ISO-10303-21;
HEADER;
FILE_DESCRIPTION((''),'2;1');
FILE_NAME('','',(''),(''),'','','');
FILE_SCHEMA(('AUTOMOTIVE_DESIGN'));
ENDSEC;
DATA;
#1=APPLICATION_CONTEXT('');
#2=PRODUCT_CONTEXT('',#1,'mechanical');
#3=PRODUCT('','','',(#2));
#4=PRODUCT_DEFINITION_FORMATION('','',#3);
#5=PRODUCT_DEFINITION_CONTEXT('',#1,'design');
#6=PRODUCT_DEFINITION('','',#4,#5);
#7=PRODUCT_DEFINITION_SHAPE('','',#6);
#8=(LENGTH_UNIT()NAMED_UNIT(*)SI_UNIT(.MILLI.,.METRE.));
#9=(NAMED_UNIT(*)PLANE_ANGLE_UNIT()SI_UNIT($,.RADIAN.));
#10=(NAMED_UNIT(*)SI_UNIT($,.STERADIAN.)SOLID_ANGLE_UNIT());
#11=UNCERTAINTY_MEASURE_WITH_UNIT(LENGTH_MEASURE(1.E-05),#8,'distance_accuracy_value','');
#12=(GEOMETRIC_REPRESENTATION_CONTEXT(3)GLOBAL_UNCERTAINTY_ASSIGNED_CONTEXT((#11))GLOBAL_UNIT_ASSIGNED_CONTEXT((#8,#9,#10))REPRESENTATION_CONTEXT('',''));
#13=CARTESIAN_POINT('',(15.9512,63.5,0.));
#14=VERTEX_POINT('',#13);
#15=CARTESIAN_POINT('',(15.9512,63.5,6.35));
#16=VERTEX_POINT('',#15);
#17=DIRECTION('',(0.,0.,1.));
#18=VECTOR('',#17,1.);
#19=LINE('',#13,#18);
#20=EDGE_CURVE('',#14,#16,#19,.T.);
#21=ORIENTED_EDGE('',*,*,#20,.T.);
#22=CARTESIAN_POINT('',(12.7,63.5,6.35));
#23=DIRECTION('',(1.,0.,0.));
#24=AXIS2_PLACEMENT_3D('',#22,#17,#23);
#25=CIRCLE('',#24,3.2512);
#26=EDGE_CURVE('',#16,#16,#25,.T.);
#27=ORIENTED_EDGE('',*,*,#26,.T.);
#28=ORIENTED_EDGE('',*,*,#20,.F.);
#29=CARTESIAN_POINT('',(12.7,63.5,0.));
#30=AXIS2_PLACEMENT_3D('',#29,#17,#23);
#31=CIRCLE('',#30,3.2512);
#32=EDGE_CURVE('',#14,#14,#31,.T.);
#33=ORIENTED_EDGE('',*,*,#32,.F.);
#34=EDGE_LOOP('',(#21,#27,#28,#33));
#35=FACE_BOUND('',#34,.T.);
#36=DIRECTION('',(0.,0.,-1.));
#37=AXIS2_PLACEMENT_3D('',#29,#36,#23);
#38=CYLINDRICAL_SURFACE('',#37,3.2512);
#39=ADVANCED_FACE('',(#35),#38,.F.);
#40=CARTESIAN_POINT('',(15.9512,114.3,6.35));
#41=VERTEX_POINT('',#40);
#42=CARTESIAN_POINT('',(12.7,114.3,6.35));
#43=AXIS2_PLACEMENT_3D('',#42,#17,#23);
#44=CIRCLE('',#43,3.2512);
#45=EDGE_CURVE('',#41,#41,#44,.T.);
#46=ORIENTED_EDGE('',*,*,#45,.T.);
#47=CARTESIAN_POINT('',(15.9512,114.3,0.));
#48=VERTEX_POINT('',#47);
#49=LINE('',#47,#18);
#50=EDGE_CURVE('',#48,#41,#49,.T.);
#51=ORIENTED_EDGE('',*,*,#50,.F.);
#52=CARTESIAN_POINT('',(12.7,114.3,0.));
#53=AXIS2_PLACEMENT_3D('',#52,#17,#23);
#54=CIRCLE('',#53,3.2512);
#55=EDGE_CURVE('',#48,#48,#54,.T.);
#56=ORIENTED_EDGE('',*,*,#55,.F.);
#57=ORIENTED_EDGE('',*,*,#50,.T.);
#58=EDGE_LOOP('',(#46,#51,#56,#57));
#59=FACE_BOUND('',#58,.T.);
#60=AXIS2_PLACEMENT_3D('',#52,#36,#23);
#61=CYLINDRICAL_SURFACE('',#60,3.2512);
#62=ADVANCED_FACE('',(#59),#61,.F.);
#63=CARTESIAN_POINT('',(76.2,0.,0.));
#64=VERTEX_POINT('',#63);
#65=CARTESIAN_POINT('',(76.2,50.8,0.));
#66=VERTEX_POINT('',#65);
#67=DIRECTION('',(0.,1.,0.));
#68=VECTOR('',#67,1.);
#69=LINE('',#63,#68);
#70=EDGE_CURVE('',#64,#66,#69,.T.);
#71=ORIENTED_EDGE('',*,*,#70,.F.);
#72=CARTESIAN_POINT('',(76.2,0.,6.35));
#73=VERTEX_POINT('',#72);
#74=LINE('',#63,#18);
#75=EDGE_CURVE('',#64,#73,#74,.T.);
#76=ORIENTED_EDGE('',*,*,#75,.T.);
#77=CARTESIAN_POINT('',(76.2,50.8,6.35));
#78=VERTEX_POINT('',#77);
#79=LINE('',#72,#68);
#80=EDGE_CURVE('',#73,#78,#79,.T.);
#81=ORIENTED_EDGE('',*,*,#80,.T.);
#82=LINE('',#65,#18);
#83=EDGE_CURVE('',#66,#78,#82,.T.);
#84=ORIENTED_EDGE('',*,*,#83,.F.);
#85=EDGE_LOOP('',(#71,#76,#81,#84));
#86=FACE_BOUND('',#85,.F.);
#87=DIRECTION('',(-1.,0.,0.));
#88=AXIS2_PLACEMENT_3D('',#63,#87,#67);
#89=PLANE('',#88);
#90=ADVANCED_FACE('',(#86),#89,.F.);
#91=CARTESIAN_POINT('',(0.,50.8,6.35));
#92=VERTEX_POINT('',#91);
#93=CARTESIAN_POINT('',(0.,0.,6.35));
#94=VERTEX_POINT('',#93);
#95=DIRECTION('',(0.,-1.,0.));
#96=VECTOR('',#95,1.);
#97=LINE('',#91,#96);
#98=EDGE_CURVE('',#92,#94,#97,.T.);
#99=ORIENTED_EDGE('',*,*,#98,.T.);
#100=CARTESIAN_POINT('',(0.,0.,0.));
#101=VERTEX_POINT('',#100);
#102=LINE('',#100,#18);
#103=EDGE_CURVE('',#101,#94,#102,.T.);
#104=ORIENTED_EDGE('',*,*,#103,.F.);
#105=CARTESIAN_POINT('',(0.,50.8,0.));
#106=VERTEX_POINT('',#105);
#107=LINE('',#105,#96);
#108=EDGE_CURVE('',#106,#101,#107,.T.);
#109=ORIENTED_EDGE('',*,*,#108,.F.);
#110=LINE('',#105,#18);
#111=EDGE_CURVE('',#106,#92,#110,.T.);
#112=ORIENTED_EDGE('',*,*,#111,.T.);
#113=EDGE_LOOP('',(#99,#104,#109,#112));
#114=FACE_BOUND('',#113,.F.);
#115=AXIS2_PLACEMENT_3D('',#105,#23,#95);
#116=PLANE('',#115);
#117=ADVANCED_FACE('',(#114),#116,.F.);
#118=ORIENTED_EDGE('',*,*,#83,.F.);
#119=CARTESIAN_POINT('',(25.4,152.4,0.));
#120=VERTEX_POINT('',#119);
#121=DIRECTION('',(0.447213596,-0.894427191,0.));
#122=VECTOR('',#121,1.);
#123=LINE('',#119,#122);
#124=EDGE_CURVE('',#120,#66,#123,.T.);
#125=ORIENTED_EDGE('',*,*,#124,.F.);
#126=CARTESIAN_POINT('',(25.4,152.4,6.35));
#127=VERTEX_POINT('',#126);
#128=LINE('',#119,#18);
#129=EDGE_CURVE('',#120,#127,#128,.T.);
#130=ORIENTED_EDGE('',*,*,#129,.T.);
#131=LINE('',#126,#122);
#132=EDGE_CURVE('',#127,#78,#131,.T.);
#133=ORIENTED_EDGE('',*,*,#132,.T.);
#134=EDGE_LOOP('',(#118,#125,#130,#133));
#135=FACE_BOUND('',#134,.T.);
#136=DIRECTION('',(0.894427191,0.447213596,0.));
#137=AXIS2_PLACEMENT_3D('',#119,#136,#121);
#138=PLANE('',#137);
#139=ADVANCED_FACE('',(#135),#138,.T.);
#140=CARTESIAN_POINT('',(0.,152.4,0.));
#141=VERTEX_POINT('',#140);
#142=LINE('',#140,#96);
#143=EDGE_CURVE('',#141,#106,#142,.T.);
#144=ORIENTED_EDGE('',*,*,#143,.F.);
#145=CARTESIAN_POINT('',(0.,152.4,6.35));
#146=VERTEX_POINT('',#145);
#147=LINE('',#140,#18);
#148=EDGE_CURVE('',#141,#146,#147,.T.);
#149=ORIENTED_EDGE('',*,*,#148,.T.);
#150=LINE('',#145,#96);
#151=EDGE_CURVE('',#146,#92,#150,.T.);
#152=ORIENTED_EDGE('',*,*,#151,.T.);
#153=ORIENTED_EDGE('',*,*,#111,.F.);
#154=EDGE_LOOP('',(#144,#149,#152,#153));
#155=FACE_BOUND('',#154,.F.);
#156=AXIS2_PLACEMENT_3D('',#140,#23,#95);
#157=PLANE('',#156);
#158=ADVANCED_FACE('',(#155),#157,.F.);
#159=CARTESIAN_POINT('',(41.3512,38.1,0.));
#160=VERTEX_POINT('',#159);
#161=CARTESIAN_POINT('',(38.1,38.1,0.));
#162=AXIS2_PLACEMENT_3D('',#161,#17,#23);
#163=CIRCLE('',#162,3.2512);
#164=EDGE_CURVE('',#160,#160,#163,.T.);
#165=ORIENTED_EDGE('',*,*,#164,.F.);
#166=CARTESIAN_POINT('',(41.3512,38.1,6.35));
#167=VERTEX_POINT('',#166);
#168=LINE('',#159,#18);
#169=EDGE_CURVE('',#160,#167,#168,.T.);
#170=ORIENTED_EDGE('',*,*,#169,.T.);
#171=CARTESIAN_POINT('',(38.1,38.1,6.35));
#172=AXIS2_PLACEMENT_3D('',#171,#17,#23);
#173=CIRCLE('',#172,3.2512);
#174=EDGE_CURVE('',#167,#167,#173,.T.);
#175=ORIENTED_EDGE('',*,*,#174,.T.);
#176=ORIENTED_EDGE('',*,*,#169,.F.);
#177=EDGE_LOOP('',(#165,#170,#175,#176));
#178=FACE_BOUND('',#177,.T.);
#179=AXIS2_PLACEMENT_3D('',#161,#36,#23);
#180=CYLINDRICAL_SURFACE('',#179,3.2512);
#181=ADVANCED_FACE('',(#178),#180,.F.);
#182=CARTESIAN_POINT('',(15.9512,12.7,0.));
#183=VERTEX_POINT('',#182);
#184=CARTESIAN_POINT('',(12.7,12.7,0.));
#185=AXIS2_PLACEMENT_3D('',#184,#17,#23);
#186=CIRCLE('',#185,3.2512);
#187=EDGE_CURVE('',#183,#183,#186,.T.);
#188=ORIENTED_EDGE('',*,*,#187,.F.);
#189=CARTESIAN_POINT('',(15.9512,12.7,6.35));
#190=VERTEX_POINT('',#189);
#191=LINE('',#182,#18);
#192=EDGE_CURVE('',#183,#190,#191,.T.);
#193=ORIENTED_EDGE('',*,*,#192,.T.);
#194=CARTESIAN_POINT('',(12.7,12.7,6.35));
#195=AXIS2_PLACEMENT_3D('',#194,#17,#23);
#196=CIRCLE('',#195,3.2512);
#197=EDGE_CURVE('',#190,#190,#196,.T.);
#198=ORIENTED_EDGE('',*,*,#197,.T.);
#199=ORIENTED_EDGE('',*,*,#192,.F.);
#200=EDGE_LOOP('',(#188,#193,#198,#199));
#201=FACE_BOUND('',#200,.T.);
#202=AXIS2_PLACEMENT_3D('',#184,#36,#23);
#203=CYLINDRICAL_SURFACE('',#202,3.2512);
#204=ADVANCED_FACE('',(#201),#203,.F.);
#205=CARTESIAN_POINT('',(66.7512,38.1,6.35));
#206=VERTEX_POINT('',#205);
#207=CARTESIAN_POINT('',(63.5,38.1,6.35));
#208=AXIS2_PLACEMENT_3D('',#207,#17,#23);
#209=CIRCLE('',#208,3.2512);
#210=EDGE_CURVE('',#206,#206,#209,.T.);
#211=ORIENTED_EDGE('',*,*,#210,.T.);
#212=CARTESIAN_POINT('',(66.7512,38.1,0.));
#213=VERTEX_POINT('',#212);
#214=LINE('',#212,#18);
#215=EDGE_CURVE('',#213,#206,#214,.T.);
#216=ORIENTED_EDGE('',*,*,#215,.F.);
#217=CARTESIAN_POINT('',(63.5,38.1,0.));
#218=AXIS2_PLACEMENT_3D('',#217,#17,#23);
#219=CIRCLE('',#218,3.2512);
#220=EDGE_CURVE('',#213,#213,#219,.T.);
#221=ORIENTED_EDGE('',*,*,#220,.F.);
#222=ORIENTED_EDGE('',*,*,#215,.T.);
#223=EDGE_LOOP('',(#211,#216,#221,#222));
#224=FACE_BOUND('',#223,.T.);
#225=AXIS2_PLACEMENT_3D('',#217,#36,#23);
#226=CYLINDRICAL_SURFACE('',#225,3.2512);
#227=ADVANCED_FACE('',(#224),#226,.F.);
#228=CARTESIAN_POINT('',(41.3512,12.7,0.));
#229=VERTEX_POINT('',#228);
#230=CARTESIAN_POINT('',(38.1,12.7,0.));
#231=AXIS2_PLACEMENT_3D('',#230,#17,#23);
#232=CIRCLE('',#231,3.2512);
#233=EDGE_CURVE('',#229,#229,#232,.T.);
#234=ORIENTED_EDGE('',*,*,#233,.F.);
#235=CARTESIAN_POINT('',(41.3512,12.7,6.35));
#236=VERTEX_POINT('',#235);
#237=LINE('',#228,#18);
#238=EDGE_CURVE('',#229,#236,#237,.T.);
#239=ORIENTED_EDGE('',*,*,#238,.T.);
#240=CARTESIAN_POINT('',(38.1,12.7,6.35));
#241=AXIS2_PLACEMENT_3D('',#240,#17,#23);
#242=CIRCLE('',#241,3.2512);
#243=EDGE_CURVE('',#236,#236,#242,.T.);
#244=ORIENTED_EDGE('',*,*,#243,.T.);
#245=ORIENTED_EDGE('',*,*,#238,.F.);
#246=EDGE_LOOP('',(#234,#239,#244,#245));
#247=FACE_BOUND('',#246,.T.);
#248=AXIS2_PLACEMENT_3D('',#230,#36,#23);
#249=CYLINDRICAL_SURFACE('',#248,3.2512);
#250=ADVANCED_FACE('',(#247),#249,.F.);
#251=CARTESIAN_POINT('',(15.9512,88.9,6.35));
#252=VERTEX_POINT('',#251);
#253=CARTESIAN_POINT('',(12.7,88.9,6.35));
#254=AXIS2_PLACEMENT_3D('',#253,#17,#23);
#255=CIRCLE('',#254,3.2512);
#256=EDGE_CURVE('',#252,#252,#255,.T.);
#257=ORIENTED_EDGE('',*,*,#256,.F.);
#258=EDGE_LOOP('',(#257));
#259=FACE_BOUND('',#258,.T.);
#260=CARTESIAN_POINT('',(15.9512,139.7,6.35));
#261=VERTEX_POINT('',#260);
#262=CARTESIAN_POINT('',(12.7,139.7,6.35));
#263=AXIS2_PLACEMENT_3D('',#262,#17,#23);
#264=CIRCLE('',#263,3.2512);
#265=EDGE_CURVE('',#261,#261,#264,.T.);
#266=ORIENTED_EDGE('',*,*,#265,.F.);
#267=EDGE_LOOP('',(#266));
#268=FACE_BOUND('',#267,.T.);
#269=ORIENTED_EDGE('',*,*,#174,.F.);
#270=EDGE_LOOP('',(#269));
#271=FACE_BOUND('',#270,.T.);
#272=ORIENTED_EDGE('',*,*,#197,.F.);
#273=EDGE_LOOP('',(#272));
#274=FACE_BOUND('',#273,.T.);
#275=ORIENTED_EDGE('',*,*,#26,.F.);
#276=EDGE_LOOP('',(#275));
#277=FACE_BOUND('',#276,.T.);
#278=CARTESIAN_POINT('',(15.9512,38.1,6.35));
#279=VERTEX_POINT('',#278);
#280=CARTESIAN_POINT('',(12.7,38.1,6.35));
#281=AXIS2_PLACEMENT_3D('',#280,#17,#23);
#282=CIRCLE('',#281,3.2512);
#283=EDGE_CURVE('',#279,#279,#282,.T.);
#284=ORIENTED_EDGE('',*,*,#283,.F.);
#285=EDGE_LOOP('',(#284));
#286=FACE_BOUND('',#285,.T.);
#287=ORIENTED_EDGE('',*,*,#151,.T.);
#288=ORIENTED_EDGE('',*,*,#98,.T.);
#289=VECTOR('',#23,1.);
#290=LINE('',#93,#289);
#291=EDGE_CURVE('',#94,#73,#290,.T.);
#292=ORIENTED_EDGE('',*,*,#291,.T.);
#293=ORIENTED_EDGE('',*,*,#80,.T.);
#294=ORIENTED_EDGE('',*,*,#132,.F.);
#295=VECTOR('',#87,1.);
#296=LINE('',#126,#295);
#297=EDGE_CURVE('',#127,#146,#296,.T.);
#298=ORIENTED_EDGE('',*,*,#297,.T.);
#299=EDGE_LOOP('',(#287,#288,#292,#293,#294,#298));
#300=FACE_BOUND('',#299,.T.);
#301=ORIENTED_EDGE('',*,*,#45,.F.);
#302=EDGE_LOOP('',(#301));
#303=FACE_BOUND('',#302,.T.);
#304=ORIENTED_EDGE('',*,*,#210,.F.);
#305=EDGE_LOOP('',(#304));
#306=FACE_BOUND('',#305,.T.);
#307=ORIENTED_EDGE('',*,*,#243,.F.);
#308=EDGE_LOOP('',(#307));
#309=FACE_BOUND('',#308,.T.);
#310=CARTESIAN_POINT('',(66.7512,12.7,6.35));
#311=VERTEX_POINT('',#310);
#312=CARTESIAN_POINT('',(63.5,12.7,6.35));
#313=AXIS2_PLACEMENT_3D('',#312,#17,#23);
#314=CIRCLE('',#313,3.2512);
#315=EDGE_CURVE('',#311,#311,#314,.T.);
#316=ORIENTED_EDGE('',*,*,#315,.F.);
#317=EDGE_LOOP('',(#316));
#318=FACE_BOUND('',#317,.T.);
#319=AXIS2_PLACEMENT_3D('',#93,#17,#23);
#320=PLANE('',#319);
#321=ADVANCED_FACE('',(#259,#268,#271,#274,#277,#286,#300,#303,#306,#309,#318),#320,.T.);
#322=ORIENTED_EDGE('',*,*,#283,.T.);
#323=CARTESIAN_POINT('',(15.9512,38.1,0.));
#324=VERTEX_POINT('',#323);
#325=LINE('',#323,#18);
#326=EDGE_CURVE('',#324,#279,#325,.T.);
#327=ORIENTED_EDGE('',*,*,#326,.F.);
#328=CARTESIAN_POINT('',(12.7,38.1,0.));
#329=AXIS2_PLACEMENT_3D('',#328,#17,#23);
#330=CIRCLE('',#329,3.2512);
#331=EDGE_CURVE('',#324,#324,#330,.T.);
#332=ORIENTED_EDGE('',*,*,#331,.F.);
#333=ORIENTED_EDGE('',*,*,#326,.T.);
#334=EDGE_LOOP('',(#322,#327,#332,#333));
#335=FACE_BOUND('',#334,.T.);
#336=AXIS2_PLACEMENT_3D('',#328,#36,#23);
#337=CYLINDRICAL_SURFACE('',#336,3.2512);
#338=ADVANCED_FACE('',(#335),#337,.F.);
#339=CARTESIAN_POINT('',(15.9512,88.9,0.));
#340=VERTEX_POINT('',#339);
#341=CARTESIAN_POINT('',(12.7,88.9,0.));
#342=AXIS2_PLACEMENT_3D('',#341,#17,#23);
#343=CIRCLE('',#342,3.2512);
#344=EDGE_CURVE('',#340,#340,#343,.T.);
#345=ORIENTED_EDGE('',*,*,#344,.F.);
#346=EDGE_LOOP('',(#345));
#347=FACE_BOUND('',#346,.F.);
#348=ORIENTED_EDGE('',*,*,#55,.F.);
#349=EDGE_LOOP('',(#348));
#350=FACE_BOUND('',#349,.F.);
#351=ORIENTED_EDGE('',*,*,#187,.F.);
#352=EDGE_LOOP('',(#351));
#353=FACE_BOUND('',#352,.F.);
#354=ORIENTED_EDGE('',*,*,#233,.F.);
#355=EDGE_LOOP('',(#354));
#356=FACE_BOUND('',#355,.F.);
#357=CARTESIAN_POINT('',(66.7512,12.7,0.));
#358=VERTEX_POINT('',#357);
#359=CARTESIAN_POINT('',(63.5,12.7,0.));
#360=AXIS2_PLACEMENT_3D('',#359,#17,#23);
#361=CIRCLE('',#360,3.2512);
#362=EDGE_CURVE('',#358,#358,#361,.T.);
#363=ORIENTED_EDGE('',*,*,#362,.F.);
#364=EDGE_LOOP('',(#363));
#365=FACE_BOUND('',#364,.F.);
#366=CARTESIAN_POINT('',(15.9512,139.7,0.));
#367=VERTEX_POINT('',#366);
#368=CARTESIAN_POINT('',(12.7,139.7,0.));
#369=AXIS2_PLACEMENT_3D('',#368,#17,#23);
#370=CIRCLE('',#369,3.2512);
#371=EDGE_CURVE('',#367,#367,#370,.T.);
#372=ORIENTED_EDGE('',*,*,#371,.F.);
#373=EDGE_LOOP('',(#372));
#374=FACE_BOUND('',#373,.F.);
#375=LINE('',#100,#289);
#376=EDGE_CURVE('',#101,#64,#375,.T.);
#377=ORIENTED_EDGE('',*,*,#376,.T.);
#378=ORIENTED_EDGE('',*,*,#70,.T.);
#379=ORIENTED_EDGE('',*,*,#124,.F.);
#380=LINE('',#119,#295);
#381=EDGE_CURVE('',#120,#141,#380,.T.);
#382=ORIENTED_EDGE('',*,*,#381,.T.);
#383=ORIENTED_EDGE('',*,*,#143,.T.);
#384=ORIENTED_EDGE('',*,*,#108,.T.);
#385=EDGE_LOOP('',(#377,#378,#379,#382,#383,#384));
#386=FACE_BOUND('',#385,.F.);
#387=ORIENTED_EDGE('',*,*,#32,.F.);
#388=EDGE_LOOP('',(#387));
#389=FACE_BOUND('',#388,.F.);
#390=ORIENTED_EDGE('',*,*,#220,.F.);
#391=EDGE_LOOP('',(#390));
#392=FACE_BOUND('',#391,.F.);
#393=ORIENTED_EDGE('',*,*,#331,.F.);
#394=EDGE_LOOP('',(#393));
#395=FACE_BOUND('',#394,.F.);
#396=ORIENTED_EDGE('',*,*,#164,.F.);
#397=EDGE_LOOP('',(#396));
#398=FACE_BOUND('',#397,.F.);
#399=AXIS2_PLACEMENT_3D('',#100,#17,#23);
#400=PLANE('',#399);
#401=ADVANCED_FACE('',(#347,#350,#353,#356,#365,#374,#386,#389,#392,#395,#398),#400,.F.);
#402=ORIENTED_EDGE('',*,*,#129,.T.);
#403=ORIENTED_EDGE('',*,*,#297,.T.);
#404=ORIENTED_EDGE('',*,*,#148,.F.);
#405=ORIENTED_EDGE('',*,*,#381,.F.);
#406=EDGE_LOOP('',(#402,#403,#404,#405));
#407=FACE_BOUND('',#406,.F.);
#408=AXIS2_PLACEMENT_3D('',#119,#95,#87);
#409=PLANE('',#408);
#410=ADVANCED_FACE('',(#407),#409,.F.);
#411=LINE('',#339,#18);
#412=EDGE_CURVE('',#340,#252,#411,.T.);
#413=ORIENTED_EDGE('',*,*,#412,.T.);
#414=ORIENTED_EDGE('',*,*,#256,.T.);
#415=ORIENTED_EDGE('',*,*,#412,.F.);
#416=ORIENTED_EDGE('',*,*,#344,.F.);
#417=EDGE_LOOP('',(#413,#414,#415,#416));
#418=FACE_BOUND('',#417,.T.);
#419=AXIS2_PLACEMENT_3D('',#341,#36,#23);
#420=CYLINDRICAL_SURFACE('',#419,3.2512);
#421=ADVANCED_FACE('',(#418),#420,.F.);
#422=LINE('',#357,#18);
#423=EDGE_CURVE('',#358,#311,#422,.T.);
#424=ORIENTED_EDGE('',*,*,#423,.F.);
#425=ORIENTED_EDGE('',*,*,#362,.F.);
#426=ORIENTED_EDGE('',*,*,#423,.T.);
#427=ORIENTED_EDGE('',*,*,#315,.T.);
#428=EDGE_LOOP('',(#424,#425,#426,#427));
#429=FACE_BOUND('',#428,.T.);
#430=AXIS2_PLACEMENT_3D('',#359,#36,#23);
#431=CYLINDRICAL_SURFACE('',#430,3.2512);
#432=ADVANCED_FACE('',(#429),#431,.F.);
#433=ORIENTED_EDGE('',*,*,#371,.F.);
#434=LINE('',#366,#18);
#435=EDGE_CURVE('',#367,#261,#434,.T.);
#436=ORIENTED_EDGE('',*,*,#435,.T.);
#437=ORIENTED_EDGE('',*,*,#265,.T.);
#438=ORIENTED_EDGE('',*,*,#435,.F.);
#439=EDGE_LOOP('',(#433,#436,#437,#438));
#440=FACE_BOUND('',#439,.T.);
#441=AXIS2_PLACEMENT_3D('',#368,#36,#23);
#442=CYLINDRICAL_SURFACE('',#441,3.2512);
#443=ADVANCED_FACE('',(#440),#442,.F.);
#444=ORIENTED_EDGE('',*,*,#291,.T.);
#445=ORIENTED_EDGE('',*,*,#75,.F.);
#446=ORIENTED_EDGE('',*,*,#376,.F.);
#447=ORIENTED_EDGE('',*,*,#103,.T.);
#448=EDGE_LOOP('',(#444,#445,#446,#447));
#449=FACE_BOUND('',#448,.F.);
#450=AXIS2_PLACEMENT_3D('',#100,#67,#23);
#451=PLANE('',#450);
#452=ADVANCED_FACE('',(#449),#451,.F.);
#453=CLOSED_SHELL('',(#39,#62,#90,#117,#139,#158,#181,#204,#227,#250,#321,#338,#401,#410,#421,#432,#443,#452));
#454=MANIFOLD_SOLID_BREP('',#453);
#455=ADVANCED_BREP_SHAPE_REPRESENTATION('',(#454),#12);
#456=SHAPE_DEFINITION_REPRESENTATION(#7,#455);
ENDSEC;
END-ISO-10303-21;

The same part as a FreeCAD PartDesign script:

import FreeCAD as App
import Part
import Sketcher
from FreeCAD import Vector
Q = App.Units.Quantity

doc = App.newDocument("Part")
body = doc.addObject("PartDesign::Body", "Body")

sketch1 = body.newObject("Sketcher::SketchObject", "Sketch")
sketch1.AttachmentSupport = (doc.getObject("XY_Plane"), [""])
sketch1.MapMode = "FlatFace"
sketch1.addGeometry([
    Part.LineSegment(Vector(0, 152.4, 0), Vector(0, 0, 0)),
    Part.LineSegment(Vector(0, 0, 0), Vector(76.2, 0, 0)),
    Part.LineSegment(Vector(76.2, 0, 0), Vector(76.2, 50.8, 0)),
    Part.LineSegment(Vector(76.2, 50.8, 0), Vector(25.4, 152.4, 0)),
    Part.LineSegment(Vector(25.4, 152.4, 0), Vector(0, 152.4, 0)),
    Part.Circle(Vector(12.7, 12.7, 0), Vector(0, 0, 1), 3.3),
    Part.Circle(Vector(38.1, 12.7, 0), Vector(0, 0, 1), 3.3),
    Part.Circle(Vector(12.7, 38.1, 0), Vector(0, 0, 1), 3.3),
    Part.Circle(Vector(12.7, 63.5, 0), Vector(0, 0, 1), 3.3),
    Part.Circle(Vector(38.1, 38.1, 0), Vector(0, 0, 1), 3.3),
    Part.Circle(Vector(63.5, 12.7, 0), Vector(0, 0, 1), 3.3),
    Part.Circle(Vector(63.5, 38.1, 0), Vector(0, 0, 1), 3.3),
    Part.Circle(Vector(12.7, 88.9, 0), Vector(0, 0, 1), 3.3),
    Part.Circle(Vector(12.7, 114.3, 0), Vector(0, 0, 1), 3.3),
    Part.Circle(Vector(12.7, 139.7, 0), Vector(0, 0, 1), 3.3),
], False)
sketch1.addConstraint([
    Sketcher.Constraint("Coincident", 0, 2, 1, 1),
    Sketcher.Constraint("Coincident", 1, 2, 2, 1),
    Sketcher.Constraint("Coincident", 2, 2, 3, 1),
    Sketcher.Constraint("Coincident", 3, 2, 4, 1),
    Sketcher.Constraint("Coincident", 4, 2, 0, 1),
    Sketcher.Constraint("Vertical", 0),
    Sketcher.Constraint("Horizontal", 1),
    Sketcher.Constraint("Vertical", 2),
    Sketcher.Constraint("Horizontal", 4),
    Sketcher.Constraint("Coincident", 0, 2, -1, 1),
    Sketcher.Constraint("Equal", 5, 6),
    Sketcher.Constraint("Equal", 6, 7),
    Sketcher.Constraint("Equal", 7, 8),
    Sketcher.Constraint("Equal", 8, 9),
    Sketcher.Constraint("Equal", 9, 10),
    Sketcher.Constraint("Equal", 10, 11),
    Sketcher.Constraint("Equal", 11, 12),
    Sketcher.Constraint("Equal", 12, 13),
    Sketcher.Constraint("Equal", 13, 14),
    Sketcher.Constraint("Horizontal", 5, 3, 6, 3),
    Sketcher.Constraint("Horizontal", 7, 3, 9, 3),
    Sketcher.Constraint("Horizontal", 6, 3, 10, 3),
    Sketcher.Constraint("Horizontal", 9, 3, 11, 3),
    Sketcher.Constraint("Vertical", 5, 3, 7, 3),
    Sketcher.Constraint("Vertical", 7, 3, 8, 3),
    Sketcher.Constraint("Vertical", 6, 3, 9, 3),
    Sketcher.Constraint("Vertical", 10, 3, 11, 3),
    Sketcher.Constraint("Vertical", 8, 3, 12, 3),
    Sketcher.Constraint("Vertical", 12, 3, 13, 3),
    Sketcher.Constraint("Vertical", 13, 3, 14, 3),
    Sketcher.Constraint("DistanceX", 1, 1, 1, 2, Q("3 in")),
    Sketcher.Constraint("DistanceX", 4, 2, 4, 1, Q("1 in")),
    Sketcher.Constraint("DistanceY", 2, 1, 2, 2, Q("2 in")),
    Sketcher.Constraint("Diameter", 5, Q("0.256 in")),
    Sketcher.Constraint("DistanceX", 5, 3, 6, 3, Q("1 in")),
    Sketcher.Constraint("DistanceY", 5, 3, 7, 3, Q("1 in")),
    Sketcher.Constraint("DistanceY", 7, 3, 8, 3, Q("1 in")),
    Sketcher.Constraint("DistanceX", 6, 3, 10, 3, Q("1 in")),
    Sketcher.Constraint("DistanceY", 8, 3, 12, 3, Q("1 in")),
    Sketcher.Constraint("DistanceY", 12, 3, 13, 3, Q("1 in")),
    Sketcher.Constraint("DistanceY", 13, 3, 14, 3, Q("1 in")),
    Sketcher.Constraint("DistanceY", 2, 2, 3, 2, Q("4 in")),
    Sketcher.Constraint("DistanceX", -1, 1, 5, 3, Q("0.5 in")),
    Sketcher.Constraint("DistanceY", -1, 1, 5, 3, Q("0.5 in")),
])
pad1 = body.newObject("PartDesign::Pad", "Pad")
pad1.Profile = sketch1
pad1.Length = Q("0.25 in")

doc.recompute()
